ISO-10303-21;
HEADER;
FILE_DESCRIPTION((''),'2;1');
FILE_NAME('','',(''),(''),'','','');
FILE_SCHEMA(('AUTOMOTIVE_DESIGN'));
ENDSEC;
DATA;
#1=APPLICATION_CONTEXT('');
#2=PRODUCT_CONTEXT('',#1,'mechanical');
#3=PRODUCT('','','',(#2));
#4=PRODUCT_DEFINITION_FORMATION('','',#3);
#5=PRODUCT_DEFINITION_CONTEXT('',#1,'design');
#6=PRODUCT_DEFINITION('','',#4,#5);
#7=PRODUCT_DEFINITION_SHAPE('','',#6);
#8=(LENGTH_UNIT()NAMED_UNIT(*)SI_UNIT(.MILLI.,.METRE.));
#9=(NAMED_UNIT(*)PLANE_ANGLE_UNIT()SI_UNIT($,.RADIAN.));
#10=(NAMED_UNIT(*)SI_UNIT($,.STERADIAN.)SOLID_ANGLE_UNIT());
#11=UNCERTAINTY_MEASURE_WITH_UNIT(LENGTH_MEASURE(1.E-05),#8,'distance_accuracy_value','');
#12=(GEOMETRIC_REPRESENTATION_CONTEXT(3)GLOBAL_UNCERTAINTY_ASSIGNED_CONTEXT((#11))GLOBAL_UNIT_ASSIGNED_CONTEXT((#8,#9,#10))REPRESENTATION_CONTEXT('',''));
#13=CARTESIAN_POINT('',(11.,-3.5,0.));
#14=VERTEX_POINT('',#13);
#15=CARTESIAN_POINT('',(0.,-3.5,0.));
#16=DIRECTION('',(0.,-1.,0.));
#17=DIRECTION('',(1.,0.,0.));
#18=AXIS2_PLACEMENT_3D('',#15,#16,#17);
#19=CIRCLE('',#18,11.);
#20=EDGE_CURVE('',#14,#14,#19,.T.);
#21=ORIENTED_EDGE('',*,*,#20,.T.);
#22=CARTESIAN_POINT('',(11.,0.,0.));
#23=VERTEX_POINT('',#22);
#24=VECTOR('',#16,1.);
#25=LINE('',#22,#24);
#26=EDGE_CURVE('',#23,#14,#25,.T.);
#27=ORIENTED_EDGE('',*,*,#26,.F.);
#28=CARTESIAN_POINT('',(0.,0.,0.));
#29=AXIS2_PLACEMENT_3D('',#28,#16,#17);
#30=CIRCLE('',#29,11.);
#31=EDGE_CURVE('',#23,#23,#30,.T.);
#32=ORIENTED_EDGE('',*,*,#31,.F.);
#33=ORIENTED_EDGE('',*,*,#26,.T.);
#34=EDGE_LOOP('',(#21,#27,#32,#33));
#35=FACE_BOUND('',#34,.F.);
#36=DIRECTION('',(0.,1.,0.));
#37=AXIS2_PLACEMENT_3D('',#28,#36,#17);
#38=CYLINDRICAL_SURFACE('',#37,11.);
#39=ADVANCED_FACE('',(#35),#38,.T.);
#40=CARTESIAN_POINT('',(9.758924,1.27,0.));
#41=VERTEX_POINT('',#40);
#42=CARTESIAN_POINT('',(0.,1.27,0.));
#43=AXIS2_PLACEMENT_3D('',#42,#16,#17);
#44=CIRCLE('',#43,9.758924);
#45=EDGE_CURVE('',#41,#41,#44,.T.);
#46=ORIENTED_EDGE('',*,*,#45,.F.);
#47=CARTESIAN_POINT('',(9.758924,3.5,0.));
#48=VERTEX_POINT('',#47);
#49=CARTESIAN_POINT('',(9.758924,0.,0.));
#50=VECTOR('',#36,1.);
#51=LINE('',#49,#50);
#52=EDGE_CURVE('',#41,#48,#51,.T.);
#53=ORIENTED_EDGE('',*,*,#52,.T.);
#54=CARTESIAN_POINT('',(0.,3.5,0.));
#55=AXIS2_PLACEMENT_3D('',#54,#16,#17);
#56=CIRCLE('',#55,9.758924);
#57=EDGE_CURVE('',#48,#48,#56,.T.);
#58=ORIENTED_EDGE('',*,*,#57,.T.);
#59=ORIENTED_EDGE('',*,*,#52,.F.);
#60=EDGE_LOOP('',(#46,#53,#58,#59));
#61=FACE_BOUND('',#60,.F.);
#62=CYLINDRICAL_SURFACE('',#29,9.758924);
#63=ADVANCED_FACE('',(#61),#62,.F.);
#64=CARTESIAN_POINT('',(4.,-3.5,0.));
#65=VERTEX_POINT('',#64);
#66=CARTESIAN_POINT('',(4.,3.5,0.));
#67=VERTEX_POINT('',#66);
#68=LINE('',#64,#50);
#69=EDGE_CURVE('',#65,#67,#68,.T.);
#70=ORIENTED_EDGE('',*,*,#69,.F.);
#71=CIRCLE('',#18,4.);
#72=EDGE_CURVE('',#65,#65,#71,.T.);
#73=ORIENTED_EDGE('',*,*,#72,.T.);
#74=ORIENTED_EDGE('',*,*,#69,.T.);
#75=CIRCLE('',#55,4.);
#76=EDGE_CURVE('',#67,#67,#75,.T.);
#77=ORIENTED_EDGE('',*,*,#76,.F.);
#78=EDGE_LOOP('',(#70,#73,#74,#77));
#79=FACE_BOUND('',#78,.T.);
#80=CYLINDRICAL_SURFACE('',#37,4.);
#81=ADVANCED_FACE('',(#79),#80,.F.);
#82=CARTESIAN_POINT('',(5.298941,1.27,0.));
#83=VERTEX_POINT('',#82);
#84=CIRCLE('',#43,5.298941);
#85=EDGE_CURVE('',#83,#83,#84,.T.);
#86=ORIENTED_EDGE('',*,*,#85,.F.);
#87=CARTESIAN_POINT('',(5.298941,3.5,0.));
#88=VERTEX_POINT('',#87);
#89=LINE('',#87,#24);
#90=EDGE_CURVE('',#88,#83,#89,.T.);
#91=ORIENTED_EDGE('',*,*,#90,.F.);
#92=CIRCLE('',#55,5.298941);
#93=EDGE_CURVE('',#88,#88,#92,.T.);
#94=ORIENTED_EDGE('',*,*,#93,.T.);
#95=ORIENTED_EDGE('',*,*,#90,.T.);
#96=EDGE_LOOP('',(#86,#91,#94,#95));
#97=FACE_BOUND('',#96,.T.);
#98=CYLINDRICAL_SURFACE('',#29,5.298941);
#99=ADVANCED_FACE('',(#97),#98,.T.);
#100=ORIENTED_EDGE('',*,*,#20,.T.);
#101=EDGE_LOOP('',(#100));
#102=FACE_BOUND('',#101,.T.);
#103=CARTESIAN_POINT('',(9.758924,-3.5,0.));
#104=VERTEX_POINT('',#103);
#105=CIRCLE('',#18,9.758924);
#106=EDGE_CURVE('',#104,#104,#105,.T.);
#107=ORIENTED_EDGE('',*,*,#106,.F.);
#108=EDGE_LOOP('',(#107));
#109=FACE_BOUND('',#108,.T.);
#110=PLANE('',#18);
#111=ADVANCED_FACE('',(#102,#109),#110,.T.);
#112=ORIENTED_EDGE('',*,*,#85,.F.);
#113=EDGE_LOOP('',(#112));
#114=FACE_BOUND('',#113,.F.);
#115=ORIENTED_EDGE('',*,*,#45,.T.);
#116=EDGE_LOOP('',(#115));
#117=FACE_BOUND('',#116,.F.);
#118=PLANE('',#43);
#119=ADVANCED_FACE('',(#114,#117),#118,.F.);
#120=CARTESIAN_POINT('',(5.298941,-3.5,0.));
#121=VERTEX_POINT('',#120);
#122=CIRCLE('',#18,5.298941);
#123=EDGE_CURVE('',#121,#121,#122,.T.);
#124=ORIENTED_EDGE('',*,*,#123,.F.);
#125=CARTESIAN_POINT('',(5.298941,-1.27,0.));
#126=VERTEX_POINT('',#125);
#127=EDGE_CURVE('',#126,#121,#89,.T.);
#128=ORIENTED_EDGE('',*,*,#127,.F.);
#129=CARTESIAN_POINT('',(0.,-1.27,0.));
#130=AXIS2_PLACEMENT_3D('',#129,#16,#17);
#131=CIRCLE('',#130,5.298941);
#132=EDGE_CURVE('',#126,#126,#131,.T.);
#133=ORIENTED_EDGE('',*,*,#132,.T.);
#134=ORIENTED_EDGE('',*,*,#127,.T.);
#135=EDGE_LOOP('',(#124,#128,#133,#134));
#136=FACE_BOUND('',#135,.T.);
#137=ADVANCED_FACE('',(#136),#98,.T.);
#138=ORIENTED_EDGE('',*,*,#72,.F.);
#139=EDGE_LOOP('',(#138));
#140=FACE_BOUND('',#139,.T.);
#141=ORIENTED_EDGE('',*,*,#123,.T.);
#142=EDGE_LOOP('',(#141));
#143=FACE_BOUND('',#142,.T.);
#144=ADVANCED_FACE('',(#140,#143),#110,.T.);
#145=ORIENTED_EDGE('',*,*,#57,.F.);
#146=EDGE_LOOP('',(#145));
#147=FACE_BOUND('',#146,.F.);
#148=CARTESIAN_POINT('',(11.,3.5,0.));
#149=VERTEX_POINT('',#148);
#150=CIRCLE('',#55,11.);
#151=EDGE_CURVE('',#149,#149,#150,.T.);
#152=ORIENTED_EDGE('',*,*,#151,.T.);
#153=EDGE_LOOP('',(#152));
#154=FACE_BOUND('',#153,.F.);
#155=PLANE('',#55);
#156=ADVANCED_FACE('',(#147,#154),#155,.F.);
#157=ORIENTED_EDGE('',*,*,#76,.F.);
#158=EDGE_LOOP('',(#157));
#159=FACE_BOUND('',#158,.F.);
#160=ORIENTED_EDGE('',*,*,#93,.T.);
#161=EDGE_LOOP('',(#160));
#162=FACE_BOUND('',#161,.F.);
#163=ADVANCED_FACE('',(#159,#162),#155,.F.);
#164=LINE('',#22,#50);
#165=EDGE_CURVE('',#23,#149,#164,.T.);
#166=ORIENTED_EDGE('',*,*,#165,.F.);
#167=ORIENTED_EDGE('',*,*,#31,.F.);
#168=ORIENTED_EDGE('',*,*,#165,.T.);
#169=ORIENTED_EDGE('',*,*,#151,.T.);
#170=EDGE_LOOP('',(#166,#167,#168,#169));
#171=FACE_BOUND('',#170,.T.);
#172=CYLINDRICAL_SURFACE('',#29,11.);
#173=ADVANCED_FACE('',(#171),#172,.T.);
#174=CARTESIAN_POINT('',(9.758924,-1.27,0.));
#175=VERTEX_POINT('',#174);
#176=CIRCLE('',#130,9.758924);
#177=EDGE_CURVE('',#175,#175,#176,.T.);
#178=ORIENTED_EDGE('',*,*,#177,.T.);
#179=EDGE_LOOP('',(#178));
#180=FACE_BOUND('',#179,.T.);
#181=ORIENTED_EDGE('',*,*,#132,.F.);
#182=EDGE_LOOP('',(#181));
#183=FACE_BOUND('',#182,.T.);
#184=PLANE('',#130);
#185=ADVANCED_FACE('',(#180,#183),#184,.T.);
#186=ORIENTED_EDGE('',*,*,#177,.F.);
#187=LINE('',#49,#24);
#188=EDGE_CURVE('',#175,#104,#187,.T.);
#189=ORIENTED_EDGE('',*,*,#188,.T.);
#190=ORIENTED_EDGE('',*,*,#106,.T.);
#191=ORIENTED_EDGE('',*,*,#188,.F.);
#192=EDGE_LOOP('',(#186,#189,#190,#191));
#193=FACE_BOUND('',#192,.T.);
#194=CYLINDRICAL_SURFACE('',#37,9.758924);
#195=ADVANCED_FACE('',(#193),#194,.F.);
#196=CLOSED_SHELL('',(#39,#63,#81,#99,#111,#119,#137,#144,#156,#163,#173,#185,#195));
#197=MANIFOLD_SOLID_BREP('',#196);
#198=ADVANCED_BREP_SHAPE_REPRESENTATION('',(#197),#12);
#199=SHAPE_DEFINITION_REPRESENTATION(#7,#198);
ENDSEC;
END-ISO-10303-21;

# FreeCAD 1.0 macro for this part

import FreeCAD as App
import Part
import Sketcher
Q = App.Units.Quantity

doc = App.newDocument("Part")
body = doc.addObject("PartDesign::Body", "Body")
body.AllowCompound = True

sketch1 = body.newObject("Sketcher::SketchObject", "Sketch")
sketch1.AttachmentSupport = (doc.getObject("XZ_Plane"), [""])
sketch1.MapMode = "FlatFace"
sketch1.addGeometry([
    Part.Circle(App.Vector(0, 0, 0), App.Vector(0, 0, 1), 11),
    Part.Circle(App.Vector(0, 0, 0), App.Vector(0, 0, 1), 9.758924),
    Part.Circle(App.Vector(0, 0, 0), App.Vector(0, 0, 1), 5.298941),
    Part.Circle(App.Vector(0, 0, 0), App.Vector(0, 0, 1), 4),
], False)
sketch1.addConstraint([
    Sketcher.Constraint("Coincident", 0, 3, -1, 1),
    Sketcher.Constraint("Coincident", 1, 3, -1, 1),
    Sketcher.Constraint("Coincident", 2, 3, -1, 1),
    Sketcher.Constraint("Coincident", 3, 3, -1, 1),
    Sketcher.Constraint("Diameter", 0, Q("22 mm")),
    Sketcher.Constraint("Diameter", 3, Q("8 mm")),
    Sketcher.Constraint("Diameter", 1, Q("19.517848 mm")),
    Sketcher.Constraint("Diameter", 2, Q("10.597882 mm")),
])
pad1 = body.newObject("PartDesign::Pad", "Pad")
pad1.Profile = sketch1
pad1.Length = 7
pad1.Midplane = True

sketch2 = body.newObject("Sketcher::SketchObject", "Sketch001")
sketch2.AttachmentSupport = (doc.getObject("XZ_Plane"), [""])
sketch2.MapMode = "FlatFace"
sketch2.addGeometry([
    Part.Circle(App.Vector(0, 0, 0), App.Vector(0, 0, 1), 9.758924),
    Part.Circle(App.Vector(0, 0, 0), App.Vector(0, 0, 1), 5.298941),
], False)
sketch2.addConstraint([
    Sketcher.Constraint("Coincident", 0, 3, -1, 1),
    Sketcher.Constraint("Coincident", 1, 3, -1, 1),
    Sketcher.Constraint("Diameter", 0, Q("19.517848 mm")),
    Sketcher.Constraint("Diameter", 1, Q("10.597882 mm")),
])
pad2 = body.newObject("PartDesign::Pad", "Pad001")
pad2.Profile = sketch2
pad2.Length = 2.54
pad2.Midplane = True

doc.recompute()
